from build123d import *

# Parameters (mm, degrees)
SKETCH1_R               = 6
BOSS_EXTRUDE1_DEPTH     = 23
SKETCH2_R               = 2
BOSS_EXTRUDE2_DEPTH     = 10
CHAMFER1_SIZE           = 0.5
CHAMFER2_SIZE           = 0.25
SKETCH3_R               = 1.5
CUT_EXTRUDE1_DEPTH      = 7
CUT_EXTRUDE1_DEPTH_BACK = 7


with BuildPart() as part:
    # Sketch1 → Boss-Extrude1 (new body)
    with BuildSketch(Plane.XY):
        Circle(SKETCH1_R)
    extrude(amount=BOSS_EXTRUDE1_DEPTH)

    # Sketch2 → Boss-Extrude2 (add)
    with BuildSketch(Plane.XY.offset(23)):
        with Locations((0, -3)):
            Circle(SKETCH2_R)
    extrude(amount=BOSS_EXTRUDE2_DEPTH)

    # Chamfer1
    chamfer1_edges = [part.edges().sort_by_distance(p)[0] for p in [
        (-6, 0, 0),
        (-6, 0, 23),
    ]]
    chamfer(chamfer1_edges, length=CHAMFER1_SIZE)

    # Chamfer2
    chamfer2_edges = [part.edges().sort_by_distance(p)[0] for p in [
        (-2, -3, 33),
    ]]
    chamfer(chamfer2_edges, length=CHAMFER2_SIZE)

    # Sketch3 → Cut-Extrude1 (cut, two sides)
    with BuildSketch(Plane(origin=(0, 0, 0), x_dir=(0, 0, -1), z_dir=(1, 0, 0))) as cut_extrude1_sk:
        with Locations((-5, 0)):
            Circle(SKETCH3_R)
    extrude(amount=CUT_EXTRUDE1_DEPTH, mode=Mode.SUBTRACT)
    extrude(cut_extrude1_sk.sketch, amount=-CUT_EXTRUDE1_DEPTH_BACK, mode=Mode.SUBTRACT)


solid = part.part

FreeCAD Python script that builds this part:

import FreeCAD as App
import Part
import Sketcher

V = App.Vector
Q = App.Units.Quantity


def edges_at(feature, points):
    """Names of the edges that pass closest to the given points."""
    edges = feature.Shape.Edges
    near = lambda p: min(range(len(edges)), key=lambda i: edges[i].distToShape(Part.Vertex(*p))[0])
    return sorted({f"Edge{near(p) + 1}" for p in points})

doc = App.newDocument("Part")
body = doc.addObject("PartDesign::Body", "Body")

sketch1 = body.newObject("Sketcher::SketchObject", "Sketch")
sketch1.AttachmentSupport = (doc.getObject("XY_Plane"), [""])
sketch1.MapMode = "FlatFace"
sketch1.addGeometry(Part.Circle(V(0, 0, 0), V(0, 0, 1), 6), False)
sketch1.addConstraint([
    Sketcher.Constraint("Coincident", 0, 3, -1, 1),
    Sketcher.Constraint("Diameter", 0, Q("12 mm")),
])
pad1 = body.newObject("PartDesign::Pad", "Pad")
pad1.Profile = sketch1
pad1.Length = 23

sketch2 = body.newObject("Sketcher::SketchObject", "Sketch001")
sketch2.AttachmentSupport = (doc.getObject("XY_Plane"), [""])
sketch2.MapMode = "FlatFace"
sketch2.AttachmentOffset = App.Placement(V(0, 0, 23), App.Rotation())
sketch2.addGeometry(Part.Circle(V(0, -3, 0), V(0, 0, 1), 2), False)
sketch2.addConstraint([
    Sketcher.Constraint("PointOnObject", 0, 3, -2),
    Sketcher.Constraint("Diameter", 0, Q("4 mm")),
    Sketcher.Constraint("DistanceY", 0, 3, -1, 1, Q("3 mm")),
])
pad2 = body.newObject("PartDesign::Pad", "Pad001")
pad2.Profile = sketch2
pad2.Length = 10
doc.recompute()

chamfer = body.newObject("PartDesign::Chamfer", "Chamfer")
chamfer.Base = (pad2, edges_at(pad2, [(-6, 0, 0), (-6, 0, 23)]))
chamfer.Size = 0.5
doc.recompute()

chamfer2 = body.newObject("PartDesign::Chamfer", "Chamfer001")
chamfer2.Base = (chamfer, edges_at(chamfer, [(-2, -3, 33)]))
chamfer2.Size = 0.25

sketch3 = body.newObject("Sketcher::SketchObject", "Sketch002")
sketch3.AttachmentSupport = (doc.getObject("YZ_Plane"), [""])
sketch3.MapMode = "FlatFace"
sketch3.addGeometry(Part.Circle(V(0, 5, 0), V(0, 0, 1), 1.5), False)
sketch3.addConstraint([
    Sketcher.Constraint("PointOnObject", 0, 3, -2),
    Sketcher.Constraint("Diameter", 0, Q("3 mm")),
    Sketcher.Constraint("DistanceY", -1, 1, 0, 3, Q("5 mm")),
])
pocket1 = body.newObject("PartDesign::Pocket", "Pocket")
pocket1.Profile = sketch3
pocket1.Type = "ThroughAll"
pocket1.Midplane = True

doc.recompute()
